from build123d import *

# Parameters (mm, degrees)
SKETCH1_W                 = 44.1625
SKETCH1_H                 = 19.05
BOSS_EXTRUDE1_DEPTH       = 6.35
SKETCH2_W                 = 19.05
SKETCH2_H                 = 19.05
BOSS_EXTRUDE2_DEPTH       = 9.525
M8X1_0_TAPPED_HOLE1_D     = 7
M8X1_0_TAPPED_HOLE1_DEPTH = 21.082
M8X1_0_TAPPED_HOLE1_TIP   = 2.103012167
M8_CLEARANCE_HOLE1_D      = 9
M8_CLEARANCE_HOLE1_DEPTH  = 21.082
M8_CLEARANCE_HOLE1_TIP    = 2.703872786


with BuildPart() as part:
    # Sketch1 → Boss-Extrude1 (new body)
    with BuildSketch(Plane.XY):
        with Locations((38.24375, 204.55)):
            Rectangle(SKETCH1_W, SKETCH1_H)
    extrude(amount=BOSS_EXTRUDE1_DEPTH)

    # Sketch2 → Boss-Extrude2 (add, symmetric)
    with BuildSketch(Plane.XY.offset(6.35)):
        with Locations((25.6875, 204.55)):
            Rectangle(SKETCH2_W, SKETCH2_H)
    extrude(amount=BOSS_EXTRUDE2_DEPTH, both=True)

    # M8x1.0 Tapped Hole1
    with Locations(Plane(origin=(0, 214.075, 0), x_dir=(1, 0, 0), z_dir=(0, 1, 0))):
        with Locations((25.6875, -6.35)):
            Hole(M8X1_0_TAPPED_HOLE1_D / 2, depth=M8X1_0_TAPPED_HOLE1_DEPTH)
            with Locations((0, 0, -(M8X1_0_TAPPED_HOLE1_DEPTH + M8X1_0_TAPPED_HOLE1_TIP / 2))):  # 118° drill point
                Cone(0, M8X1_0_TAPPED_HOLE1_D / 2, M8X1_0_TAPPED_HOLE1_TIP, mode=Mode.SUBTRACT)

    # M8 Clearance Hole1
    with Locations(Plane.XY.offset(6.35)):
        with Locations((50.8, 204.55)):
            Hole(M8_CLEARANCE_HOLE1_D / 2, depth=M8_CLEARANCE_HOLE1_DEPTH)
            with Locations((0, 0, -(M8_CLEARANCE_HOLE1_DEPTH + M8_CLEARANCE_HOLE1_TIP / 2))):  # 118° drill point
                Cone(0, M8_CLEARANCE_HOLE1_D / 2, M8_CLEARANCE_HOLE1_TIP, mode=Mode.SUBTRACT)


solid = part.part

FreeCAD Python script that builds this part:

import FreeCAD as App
import Part
import Sketcher
from FreeCAD import Vector
Q = App.Units.Quantity


def add_polygon(sketch, points):
    """Adds a closed chain of lines whose ends are joined by coincident constraints."""
    first, n = sketch.GeometryCount, len(points)
    for a, b in zip(points, points[1:] + points[:1]):
        sketch.addGeometry(Part.LineSegment(App.Vector(*a, 0), App.Vector(*b, 0)), False)
    for i in range(n):
        sketch.addConstraint(Sketcher.Constraint("Coincident", first + i, 2, first + (i + 1) % n, 1))

doc = App.newDocument("Part")
body = doc.addObject("PartDesign::Body", "Body")

# Sketch on XY plane
sketch1 = doc.addObject("Sketcher::SketchObject", "Sketch")
body.addObject(sketch1)
sketch1.AttachmentSupport = (doc.XY_Plane, [""])
sketch1.MapMode = "FlatFace"
add_polygon(sketch1, [(16, 214), (16, 195), (60, 195), (60, 214)])  # lines 0-3
sketch1.addConstraint([
    Sketcher.Constraint("Vertical", 0),
    Sketcher.Constraint("Horizontal", 1),
    Sketcher.Constraint("Vertical", 2),
    Sketcher.Constraint("Horizontal", 3),
    Sketcher.Constraint("DistanceY", 0, 2, 0, 1, Q("0.75 in")),
    Sketcher.Constraint("DistanceX", -1, 1, 1, 2, Q("2.375 in")),
    Sketcher.Constraint("DistanceX", 1, 1, 1, 2, 44.1625),
    Sketcher.Constraint("DistanceY", -1, 1, 0, 2, 195.025),
])
pad1 = doc.addObject("PartDesign::Pad", "Pad")
body.addObject(pad1)
pad1.Profile = sketch1
pad1.Length = Q("0.25 in")

# Sketch on XY plane
sketch2 = doc.addObject("Sketcher::SketchObject", "Sketch001")
body.addObject(sketch2)
sketch2.AttachmentSupport = (doc.XY_Plane, [""])
sketch2.MapMode = "FlatFace"
sketch2.AttachmentOffset = App.Placement(Vector(0, 0, 0.25 * 25.4), App.Rotation())
add_polygon(sketch2, [(16, 214), (16, 195), (35, 195), (35, 214)])  # lines 0-3
sketch2.addConstraint([
    Sketcher.Constraint("Vertical", 0),
    Sketcher.Constraint("Horizontal", 1),
    Sketcher.Constraint("Vertical", 2),
    Sketcher.Constraint("Horizontal", 3),
    Sketcher.Constraint("Equal", 3, 0),
    Sketcher.Constraint("DistanceX", 1, 1, 1, 2, Q("0.75 in")),
    Sketcher.Constraint("DistanceX", -1, 1, 0, 2, 16.1625),
    Sketcher.Constraint("DistanceY", -1, 1, 0, 2, 195.025),
])
pad2 = doc.addObject("PartDesign::Pad", "Pad001")
body.addObject(pad2)
pad2.Profile = sketch2
pad2.Length = Q("0.75 in")
pad2.Midplane = True

# Sketch on XZ plane
sketch3 = doc.addObject("Sketcher::SketchObject", "Sketch002")
body.addObject(sketch3)
sketch3.AttachmentSupport = (doc.XZ_Plane, [""])
sketch3.MapMode = "FlatFace"
sketch3.AttachmentOffset = App.Placement(Vector(0, 0, -214.075), App.Rotation())
sketch3.addGeometry(Part.Circle(Vector(25.7, 6.3, 0), Vector(0, 0, 1), 3.5), False)
sketch3.addConstraint([
    Sketcher.Constraint("Diameter", 0, 7.0),
    Sketcher.Constraint("DistanceY", -1, 1, 0, 3, Q("0.25 in")),
    Sketcher.Constraint("DistanceX", -1, 1, 0, 3, 25.6875),
])
doc.recompute()
hole = doc.addObject("PartDesign::Hole", "Hole")
body.addObject(hole)
hole.Profile = sketch3
hole.ThreadType = "None"
hole.Diameter = 7
hole.DepthType = "Dimension"
hole.Depth = Q("0.83 in")
hole.DrillPoint = "Angled"
hole.DrillPointAngle = 118
hole.Reversed = True

# Sketch on XY plane
sketch4 = doc.addObject("Sketcher::SketchObject", "Sketch003")
body.addObject(sketch4)
sketch4.AttachmentSupport = (doc.XY_Plane, [""])
sketch4.MapMode = "FlatFace"
sketch4.AttachmentOffset = App.Placement(Vector(0, 0, 0.25 * 25.4), App.Rotation())
sketch4.addGeometry(Part.Circle(Vector(50.8, 204.6, 0), Vector(0, 0, 1), 4.5), False)
sketch4.addConstraint([
    Sketcher.Constraint("DistanceX", -1, 1, 0, 3, Q("2 in")),
    Sketcher.Constraint("Diameter", 0, 9.0),
    Sketcher.Constraint("DistanceY", -1, 1, 0, 3, 204.55),
])
doc.recompute()
hole2 = doc.addObject("PartDesign::Hole", "Hole001")
body.addObject(hole2)
hole2.Profile = sketch4
hole2.ThreadType = "None"
hole2.Diameter = 9
hole2.DepthType = "Dimension"
hole2.Depth = Q("0.83 in")
hole2.DrillPoint = "Angled"
hole2.DrillPointAngle = 118

doc.recompute()
